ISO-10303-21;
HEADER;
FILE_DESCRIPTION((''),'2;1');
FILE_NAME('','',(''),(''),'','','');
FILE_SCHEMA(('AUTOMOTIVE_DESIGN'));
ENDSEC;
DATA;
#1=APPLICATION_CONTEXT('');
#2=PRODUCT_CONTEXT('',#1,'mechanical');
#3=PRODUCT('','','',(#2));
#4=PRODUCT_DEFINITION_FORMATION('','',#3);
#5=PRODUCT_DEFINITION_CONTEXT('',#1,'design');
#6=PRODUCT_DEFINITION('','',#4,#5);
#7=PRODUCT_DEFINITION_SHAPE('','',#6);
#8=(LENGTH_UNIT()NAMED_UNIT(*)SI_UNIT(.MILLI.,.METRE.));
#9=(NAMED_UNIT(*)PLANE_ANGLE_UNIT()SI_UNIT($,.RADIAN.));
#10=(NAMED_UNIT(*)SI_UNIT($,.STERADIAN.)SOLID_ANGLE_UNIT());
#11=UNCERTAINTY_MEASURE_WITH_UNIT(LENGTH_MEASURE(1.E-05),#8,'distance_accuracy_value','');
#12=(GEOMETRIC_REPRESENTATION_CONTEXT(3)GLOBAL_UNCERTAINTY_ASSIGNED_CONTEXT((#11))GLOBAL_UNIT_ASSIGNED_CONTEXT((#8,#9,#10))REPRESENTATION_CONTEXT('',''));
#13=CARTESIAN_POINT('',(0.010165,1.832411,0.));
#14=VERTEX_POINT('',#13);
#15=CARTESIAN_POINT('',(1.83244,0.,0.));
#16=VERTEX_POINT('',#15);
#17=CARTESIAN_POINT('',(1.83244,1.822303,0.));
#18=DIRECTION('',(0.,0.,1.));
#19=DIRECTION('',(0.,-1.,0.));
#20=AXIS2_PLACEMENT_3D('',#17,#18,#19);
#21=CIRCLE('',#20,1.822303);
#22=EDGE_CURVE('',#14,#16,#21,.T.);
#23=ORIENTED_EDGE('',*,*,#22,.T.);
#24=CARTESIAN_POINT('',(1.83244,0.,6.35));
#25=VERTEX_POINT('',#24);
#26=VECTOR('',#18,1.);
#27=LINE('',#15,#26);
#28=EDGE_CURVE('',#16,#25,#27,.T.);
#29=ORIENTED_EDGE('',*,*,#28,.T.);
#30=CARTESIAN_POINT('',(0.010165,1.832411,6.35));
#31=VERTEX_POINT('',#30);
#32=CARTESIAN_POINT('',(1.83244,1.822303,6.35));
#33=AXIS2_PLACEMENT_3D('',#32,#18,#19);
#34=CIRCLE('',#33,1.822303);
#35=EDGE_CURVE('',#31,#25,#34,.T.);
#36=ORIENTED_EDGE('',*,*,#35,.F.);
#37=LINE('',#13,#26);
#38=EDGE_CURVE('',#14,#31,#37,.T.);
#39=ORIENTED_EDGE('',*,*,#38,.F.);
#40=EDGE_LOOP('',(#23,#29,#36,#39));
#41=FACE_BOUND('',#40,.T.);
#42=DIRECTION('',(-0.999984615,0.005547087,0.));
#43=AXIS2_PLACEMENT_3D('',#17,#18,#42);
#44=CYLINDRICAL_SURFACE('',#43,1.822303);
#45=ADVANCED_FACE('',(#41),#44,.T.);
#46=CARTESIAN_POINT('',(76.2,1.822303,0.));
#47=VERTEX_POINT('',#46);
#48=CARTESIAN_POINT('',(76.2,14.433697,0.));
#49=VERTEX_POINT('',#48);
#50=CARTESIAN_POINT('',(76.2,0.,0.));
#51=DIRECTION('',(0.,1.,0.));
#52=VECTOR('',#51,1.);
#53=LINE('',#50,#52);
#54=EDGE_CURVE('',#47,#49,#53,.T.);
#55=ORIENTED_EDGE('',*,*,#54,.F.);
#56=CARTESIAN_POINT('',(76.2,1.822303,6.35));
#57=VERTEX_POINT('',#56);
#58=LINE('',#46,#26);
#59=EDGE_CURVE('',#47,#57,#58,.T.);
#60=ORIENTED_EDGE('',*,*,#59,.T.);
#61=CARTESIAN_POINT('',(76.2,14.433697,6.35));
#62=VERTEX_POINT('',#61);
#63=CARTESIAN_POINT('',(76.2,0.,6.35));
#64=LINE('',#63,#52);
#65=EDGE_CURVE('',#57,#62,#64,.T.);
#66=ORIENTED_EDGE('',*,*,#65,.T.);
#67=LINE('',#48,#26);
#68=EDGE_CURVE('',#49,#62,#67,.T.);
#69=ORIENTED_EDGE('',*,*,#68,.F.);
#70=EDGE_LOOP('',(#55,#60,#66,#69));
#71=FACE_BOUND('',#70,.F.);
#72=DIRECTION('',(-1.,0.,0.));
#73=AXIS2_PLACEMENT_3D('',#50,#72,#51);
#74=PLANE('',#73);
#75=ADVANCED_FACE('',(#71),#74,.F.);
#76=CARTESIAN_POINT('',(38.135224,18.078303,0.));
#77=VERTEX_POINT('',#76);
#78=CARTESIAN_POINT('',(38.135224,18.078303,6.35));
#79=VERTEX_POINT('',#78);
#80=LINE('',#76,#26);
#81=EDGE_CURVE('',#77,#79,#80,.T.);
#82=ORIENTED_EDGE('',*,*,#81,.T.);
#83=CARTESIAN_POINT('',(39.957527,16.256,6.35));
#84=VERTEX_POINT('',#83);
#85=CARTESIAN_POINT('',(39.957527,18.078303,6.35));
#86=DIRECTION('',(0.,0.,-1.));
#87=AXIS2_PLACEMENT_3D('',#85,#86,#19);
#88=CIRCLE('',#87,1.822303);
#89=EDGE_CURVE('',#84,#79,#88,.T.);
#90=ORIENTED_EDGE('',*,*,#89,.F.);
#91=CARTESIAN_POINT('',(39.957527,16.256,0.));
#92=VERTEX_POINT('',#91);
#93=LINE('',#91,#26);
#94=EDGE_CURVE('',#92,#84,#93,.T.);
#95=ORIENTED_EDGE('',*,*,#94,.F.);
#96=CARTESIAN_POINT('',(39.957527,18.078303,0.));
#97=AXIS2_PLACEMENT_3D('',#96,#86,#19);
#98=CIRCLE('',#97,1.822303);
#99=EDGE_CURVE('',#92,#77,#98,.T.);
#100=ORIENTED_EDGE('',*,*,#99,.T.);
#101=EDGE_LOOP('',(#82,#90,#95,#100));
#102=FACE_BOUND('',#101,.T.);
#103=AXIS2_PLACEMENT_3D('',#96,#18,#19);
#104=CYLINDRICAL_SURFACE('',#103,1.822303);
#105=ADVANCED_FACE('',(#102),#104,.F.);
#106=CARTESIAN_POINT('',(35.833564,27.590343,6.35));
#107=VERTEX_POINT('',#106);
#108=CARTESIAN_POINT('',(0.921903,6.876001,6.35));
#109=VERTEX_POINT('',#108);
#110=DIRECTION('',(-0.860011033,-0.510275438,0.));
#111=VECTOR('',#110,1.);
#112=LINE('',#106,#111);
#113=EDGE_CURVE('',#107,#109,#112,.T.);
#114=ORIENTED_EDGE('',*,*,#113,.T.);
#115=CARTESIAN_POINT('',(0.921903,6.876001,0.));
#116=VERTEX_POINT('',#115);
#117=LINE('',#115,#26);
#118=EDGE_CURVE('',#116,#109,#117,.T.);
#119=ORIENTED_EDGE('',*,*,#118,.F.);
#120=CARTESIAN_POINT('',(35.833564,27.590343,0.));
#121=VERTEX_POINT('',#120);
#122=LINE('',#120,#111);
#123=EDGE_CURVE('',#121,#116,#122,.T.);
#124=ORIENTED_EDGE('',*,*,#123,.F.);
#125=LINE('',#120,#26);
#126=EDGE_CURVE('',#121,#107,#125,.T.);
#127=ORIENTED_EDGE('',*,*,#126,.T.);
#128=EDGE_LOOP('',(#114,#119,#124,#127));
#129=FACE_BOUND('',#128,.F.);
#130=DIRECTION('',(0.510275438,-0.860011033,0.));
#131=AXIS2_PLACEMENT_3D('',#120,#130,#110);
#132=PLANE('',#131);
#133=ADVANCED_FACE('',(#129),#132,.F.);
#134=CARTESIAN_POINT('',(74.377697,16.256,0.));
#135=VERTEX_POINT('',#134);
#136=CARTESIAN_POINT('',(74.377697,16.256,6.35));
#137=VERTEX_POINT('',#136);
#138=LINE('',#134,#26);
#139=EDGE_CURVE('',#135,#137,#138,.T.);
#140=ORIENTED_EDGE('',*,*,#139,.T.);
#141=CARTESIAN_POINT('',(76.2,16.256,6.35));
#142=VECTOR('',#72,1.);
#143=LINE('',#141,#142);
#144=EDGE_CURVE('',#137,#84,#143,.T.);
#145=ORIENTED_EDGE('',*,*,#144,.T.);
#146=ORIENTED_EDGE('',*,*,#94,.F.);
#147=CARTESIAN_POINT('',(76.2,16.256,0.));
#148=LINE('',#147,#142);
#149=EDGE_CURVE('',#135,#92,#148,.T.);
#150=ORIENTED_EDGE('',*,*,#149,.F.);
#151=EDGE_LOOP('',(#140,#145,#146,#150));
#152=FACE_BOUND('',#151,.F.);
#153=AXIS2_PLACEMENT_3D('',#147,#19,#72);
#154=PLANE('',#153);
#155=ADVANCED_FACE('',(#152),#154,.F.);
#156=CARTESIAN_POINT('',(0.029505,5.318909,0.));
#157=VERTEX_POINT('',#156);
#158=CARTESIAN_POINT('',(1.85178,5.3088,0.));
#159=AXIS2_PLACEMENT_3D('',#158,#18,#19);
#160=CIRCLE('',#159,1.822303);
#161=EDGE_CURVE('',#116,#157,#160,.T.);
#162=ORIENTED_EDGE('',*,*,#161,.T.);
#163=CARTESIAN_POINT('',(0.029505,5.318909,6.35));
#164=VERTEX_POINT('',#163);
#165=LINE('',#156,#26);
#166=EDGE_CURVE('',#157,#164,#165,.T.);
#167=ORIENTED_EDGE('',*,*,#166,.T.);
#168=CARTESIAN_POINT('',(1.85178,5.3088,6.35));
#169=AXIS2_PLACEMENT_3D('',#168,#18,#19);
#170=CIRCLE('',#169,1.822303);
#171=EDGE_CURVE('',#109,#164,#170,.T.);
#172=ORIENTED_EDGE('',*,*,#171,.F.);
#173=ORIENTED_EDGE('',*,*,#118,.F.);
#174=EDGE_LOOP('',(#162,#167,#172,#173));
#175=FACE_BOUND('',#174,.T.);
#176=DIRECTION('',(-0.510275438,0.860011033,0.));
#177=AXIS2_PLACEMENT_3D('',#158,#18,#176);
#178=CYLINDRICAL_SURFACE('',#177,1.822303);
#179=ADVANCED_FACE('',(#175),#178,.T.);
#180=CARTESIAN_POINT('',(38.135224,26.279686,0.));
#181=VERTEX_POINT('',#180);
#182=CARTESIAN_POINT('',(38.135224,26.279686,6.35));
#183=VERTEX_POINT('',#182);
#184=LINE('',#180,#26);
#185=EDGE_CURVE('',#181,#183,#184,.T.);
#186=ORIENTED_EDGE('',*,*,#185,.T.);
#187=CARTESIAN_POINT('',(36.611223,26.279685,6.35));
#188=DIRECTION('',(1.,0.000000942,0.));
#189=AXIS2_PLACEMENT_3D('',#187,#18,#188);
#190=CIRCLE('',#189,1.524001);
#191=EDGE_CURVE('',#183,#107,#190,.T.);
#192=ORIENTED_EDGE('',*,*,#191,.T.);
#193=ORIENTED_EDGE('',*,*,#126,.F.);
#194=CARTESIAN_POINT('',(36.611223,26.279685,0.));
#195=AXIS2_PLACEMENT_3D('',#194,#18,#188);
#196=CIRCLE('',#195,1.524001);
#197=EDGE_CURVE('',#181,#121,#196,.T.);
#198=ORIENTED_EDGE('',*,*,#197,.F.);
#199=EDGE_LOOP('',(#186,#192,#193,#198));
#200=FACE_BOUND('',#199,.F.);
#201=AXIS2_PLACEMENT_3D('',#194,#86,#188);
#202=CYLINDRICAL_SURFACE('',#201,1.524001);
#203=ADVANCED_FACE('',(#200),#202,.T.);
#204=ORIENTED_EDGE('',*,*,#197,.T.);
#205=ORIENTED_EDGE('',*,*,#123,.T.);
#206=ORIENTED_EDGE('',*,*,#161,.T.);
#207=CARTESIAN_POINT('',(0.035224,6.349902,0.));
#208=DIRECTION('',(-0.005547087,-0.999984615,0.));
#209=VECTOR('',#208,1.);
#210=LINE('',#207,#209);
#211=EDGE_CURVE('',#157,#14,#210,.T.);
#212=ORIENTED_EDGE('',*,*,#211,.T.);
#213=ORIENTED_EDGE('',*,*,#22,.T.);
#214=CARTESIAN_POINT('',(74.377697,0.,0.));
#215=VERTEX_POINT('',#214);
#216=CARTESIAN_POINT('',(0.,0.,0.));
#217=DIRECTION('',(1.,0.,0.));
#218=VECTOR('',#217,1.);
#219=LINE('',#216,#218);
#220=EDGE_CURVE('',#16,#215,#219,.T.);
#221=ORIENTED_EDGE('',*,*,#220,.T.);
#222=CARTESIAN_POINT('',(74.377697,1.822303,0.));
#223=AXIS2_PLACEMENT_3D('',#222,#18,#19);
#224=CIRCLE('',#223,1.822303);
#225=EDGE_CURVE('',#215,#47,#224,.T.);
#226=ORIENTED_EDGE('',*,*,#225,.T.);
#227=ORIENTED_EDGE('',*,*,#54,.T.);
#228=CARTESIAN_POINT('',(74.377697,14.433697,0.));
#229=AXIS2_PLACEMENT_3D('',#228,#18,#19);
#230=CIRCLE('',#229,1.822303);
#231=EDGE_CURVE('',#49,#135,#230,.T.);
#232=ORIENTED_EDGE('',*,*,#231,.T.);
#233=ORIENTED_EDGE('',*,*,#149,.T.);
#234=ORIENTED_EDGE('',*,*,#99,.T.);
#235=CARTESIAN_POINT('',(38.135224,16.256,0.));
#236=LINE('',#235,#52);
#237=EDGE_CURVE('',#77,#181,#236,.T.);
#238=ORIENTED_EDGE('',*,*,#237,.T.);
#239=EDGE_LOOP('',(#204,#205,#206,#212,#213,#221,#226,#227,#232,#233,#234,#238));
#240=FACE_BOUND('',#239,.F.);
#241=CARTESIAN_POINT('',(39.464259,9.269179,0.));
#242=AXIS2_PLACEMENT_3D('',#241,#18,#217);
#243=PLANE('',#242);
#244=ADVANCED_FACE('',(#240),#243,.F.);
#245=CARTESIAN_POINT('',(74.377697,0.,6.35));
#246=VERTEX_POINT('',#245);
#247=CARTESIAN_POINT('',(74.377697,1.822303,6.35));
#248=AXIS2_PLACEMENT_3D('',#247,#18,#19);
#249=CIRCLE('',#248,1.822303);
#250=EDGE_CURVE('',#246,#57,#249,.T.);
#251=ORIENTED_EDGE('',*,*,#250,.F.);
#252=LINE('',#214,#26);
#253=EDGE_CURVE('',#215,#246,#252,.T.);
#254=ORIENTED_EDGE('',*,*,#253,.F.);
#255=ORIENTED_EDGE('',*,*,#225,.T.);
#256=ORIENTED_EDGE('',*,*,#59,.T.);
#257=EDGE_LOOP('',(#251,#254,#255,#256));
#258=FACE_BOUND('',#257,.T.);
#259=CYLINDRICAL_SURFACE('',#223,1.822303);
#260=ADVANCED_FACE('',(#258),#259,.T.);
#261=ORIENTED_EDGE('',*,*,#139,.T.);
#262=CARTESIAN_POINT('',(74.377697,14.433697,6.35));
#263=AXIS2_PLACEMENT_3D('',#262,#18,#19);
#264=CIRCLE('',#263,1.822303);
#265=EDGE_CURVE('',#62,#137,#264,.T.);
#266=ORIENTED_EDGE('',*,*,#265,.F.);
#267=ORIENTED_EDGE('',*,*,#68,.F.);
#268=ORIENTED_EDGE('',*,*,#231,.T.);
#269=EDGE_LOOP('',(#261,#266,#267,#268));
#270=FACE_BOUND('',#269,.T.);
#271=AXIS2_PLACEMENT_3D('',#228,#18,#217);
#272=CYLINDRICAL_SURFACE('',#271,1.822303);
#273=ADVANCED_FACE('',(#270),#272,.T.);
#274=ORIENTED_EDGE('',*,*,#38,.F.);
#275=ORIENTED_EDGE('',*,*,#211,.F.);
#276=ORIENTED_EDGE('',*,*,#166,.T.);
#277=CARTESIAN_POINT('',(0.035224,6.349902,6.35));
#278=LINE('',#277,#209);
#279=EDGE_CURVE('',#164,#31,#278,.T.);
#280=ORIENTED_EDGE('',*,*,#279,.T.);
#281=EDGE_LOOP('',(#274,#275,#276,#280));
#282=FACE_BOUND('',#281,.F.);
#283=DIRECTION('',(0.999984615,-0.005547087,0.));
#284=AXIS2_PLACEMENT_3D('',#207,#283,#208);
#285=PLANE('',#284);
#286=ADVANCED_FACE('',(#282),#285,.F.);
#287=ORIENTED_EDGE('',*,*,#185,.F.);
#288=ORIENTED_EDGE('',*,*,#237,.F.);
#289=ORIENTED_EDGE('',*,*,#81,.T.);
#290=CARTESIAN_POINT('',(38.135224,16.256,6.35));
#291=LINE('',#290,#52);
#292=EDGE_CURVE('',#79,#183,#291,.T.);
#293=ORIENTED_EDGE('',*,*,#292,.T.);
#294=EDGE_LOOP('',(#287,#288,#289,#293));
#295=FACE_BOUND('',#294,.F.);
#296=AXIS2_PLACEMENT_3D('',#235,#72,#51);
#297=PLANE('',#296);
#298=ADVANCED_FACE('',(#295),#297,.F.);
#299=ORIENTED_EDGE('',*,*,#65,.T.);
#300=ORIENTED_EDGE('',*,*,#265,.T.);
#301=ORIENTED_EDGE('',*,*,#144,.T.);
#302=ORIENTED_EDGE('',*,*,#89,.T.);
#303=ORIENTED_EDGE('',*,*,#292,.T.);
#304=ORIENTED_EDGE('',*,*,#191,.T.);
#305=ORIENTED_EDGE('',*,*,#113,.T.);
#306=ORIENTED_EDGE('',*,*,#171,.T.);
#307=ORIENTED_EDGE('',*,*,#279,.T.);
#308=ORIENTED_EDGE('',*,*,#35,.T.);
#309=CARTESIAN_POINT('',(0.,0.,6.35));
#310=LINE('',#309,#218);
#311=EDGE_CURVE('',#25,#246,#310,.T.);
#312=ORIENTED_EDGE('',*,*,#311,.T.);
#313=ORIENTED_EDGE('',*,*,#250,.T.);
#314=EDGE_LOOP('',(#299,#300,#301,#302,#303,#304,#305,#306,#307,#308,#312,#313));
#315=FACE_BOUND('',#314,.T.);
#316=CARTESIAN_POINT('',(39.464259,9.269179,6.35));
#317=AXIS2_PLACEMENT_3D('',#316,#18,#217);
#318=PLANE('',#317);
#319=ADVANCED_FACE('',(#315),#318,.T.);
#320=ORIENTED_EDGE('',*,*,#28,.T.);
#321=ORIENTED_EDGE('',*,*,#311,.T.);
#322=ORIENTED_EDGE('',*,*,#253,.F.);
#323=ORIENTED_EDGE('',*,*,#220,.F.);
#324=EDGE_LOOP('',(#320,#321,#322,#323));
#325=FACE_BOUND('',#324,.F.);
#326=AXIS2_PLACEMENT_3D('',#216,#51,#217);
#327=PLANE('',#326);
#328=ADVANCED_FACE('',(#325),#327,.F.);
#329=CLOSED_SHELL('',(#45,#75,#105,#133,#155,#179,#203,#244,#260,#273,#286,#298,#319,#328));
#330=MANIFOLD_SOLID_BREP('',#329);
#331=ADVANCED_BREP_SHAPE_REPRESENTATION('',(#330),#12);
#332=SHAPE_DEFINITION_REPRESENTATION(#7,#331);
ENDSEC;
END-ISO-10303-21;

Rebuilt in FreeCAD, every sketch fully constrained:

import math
import FreeCAD as App
import Part
import Sketcher

V = App.Vector
Q = App.Units.Quantity


def edges_at(feature, points):
    """Names of the edges that pass closest to the given points."""
    edges = feature.Shape.Edges
    near = lambda p: min(range(len(edges)), key=lambda i: edges[i].distToShape(Part.Vertex(*p))[0])
    return sorted({f"Edge{near(p) + 1}" for p in points})

doc = App.newDocument("Part")
body = doc.addObject("PartDesign::Body", "Body")

# Sketch on XY plane
sketch1 = body.newObject("Sketcher::SketchObject", "Sketch")
sketch1.AttachmentSupport = (doc.getObject("XY_Plane"), [""])
sketch1.MapMode = "FlatFace"
sketch1.addGeometry(Part.LineSegment(V(35.8, 27.6, 0), V(0, 6.3, 0)), False)
sketch1.addGeometry(Part.LineSegment(V(0, 6.3, 0), V(0, 0, 0)), False)
sketch1.addGeometry(Part.LineSegment(V(0, 0, 0), V(76.2, 0, 0)), False)
sketch1.addGeometry(Part.LineSegment(V(76.2, 0, 0), V(76.2, 16.3, 0)), False)
sketch1.addGeometry(Part.LineSegment(V(76.2, 16.3, 0), V(38.1, 16.3, 0)), False)
sketch1.addGeometry(Part.LineSegment(V(38.1, 16.3, 0), V(38.1, 26.3, 0)), False)
sketch1.addGeometry(Part.ArcOfCircle(Part.Circle(V(36.6, 26.3, 0), V(0, 0, 1), 1.5), math.radians(0), math.radians(121)), False)
sketch1.addConstraint(Sketcher.Constraint("Coincident", 0, 2, 1, 1))
sketch1.addConstraint(Sketcher.Constraint("Coincident", 1, 2, 2, 1))
sketch1.addConstraint(Sketcher.Constraint("Coincident", 2, 2, 3, 1))
sketch1.addConstraint(Sketcher.Constraint("Coincident", 3, 2, 4, 1))
sketch1.addConstraint(Sketcher.Constraint("Coincident", 4, 2, 5, 1))
sketch1.addConstraint(Sketcher.Constraint("Tangent", 5, 2, 6, 1))
sketch1.addConstraint(Sketcher.Constraint("Tangent", 6, 2, 0, 1))
sketch1.addConstraint(Sketcher.Constraint("Horizontal", 2))
sketch1.addConstraint(Sketcher.Constraint("Vertical", 3))
sketch1.addConstraint(Sketcher.Constraint("Horizontal", 4))
sketch1.addConstraint(Sketcher.Constraint("Vertical", 5))
sketch1.addConstraint(Sketcher.Constraint("Coincident", 1, 2, -1, 1))
sketch1.addConstraint(Sketcher.Constraint("DistanceX", 2, 1, 2, 2, Q("3 in")))
sketch1.addConstraint(Sketcher.Constraint("Radius", 6, Q("0.06 in")))
sketch1.addConstraint(Sketcher.Constraint("DistanceY", 3, 1, 3, 2, Q("0.64 in")))
sketch1.addConstraint(Sketcher.Constraint("DistanceX", 0, 2, 4, 2, Q("1.5 in")))
sketch1.addConstraint(Sketcher.Constraint("Distance", 1, Q("0.25 in")))
sketch1.addConstraint(Sketcher.Constraint("DistanceX", 4, 2, 4, 1, Q("38.064776 mm")))
sketch1.addConstraint(Sketcher.Constraint("DistanceY", 5, 1, 5, 2, Q("10.023686 mm")))
pad1 = body.newObject("PartDesign::Pad", "Pad")
pad1.Profile = sketch1
pad1.Length = Q("0.25 in")
doc.recompute()

fillet = body.newObject("PartDesign::Fillet", "Fillet")
fillet.Base = (pad1, edges_at(pad1, [
    (0.035, 6.35, 3.175),
    (76.2, 0, 3.175),
    (76.2, 16.256, 3.175),
    (38.135, 16.256, 3.175),
    (0, 0, 3.175),
]))
fillet.Radius = 1.822303

doc.recompute()
